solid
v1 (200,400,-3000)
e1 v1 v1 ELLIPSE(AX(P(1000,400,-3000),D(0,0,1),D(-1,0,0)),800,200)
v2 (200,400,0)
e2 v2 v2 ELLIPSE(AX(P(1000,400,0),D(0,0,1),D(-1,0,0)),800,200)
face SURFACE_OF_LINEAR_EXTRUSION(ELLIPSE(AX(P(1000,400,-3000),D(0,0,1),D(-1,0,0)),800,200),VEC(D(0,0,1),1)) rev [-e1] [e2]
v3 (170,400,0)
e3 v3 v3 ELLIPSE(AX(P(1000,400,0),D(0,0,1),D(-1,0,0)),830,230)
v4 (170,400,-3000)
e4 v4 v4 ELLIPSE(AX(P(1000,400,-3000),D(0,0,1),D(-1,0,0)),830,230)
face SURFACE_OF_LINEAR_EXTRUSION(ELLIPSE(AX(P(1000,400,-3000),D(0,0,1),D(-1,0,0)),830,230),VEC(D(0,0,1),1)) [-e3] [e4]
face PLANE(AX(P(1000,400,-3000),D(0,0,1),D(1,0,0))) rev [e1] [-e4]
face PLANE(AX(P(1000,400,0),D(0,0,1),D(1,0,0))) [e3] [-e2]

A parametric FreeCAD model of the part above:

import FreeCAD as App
import Part
import Sketcher

V = App.Vector

doc = App.newDocument("Part")
body = doc.addObject("PartDesign::Body", "Body")

# Sketch on XY plane
sketch1 = body.newObject("Sketcher::SketchObject", "Sketch")
sketch1.AttachmentSupport = (doc.getObject("XY_Plane"), [""])
sketch1.MapMode = "FlatFace"
sketch1.addGeometry(Part.Ellipse(V(170, 400, 0), V(1000, 170, 0), V(1000, 400, 0)), False)
sketch1.addGeometry(Part.Ellipse(V(200, 400, 0), V(1000, 200, 0), V(1000, 400, 0)), False)
sketch1.addConstraint(Sketcher.Constraint("Block", 0))
sketch1.addConstraint(Sketcher.Constraint("Block", 1))
pad1 = body.newObject("PartDesign::Pad", "Pad")
pad1.Profile = sketch1
pad1.Length = 3000
pad1.Reversed = True

doc.recompute()
